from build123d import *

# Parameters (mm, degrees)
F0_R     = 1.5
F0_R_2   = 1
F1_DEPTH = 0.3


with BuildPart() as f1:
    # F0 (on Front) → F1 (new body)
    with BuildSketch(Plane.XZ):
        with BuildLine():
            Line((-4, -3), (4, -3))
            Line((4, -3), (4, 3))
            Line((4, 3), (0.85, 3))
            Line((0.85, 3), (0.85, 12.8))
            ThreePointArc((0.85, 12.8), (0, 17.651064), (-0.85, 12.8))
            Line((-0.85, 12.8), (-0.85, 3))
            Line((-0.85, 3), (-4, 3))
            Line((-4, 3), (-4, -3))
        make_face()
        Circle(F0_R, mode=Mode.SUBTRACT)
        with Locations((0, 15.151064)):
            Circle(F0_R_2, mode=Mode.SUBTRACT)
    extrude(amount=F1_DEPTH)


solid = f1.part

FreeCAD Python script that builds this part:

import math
import FreeCAD as App
import Part
import Sketcher
from FreeCAD import Vector

doc = App.newDocument("Part")
params = doc.addObject("Spreadsheet::Sheet", "Params")
for row, (alias, value) in enumerate([
    ("sketch1_diameter", "3 mm"),
    ("sketch1_diameter2", "2 mm"),
    ("sketch1_radius", "2.5 mm"),
    ("sketch1_width", "8 mm"),
    ("sketch1_height", "6 mm"),
    ("pad1_length", "0.3 mm"),
], start=1):
    params.set(f"A{row}", alias)
    params.set(f"B{row}", "=" + value)
    params.setAlias(f"B{row}", alias)

body = doc.addObject("PartDesign::Body", "Body")

# Sketch on XZ plane
sketch1 = doc.addObject("Sketcher::SketchObject", "Sketch")
body.addObject(sketch1)
sketch1.AttachmentSupport = (doc.XZ_Plane, [""])
sketch1.MapMode = "FlatFace"
sketch1.addGeometry(Part.LineSegment(Vector(-4, -3, 0), Vector(4, -3, 0)), False)
sketch1.addGeometry(Part.LineSegment(Vector(4, -3, 0), Vector(4, 3, 0)), False)
sketch1.addGeometry(Part.LineSegment(Vector(4, 3, 0), Vector(0.85, 3, 0)), False)
sketch1.addGeometry(Part.LineSegment(Vector(0.85, 3, 0), Vector(0.85, 12.8, 0)), False)
sketch1.addGeometry(Part.ArcOfCircle(Part.Circle(Vector(0, 15.151064, 0), Vector(0, 0, 1), 2.5), math.radians(-70.123128), math.radians(250.123128)), False)
sketch1.addGeometry(Part.LineSegment(Vector(-0.85, 12.8, 0), Vector(-0.85, 3, 0)), False)
sketch1.addGeometry(Part.LineSegment(Vector(-0.85, 3, 0), Vector(-4, 3, 0)), False)
sketch1.addGeometry(Part.LineSegment(Vector(-4, 3, 0), Vector(-4, -3, 0)), False)
sketch1.addGeometry(Part.Circle(Vector(0, 0, 0), Vector(0, 0, 1), 1.5), False)
sketch1.addGeometry(Part.Circle(Vector(0, 15.151064, 0), Vector(0, 0, 1), 1), False)
sketch1.addConstraint(Sketcher.Constraint("Coincident", 0, 2, 1, 1))
sketch1.addConstraint(Sketcher.Constraint("Coincident", 1, 2, 2, 1))
sketch1.addConstraint(Sketcher.Constraint("Coincident", 2, 2, 3, 1))
sketch1.addConstraint(Sketcher.Constraint("Coincident", 3, 2, 4, 1))
sketch1.addConstraint(Sketcher.Constraint("Coincident", 4, 2, 5, 1))
sketch1.addConstraint(Sketcher.Constraint("Coincident", 5, 2, 6, 1))
sketch1.addConstraint(Sketcher.Constraint("Coincident", 6, 2, 7, 1))
sketch1.addConstraint(Sketcher.Constraint("Coincident", 7, 2, 0, 1))
sketch1.addConstraint(Sketcher.Constraint("Horizontal", 0))
sketch1.addConstraint(Sketcher.Constraint("Vertical", 1))
sketch1.addConstraint(Sketcher.Constraint("Horizontal", 2))
sketch1.addConstraint(Sketcher.Constraint("Vertical", 3))
sketch1.addConstraint(Sketcher.Constraint("Vertical", 5))
sketch1.addConstraint(Sketcher.Constraint("Horizontal", 6))
sketch1.addConstraint(Sketcher.Constraint("Vertical", 7))
sketch1.addConstraint(Sketcher.Constraint("Coincident", 8, 3, -1, 1))
sketch1.addConstraint(Sketcher.Constraint("Coincident", 9, 3, 4, 3))
sketch1.addConstraint(Sketcher.Constraint("Symmetric", 0, 2, 6, 2, -1, 1))
sketch1.addConstraint(Sketcher.Constraint("Symmetric", 3, 2, 4, 2, -2))
sketch1.addConstraint(Sketcher.Constraint("Horizontal", 2, 2, 5, 2))
sketch1.addConstraint(Sketcher.Constraint("Diameter", 8, 3.0))
sketch1.addConstraint(Sketcher.Constraint("Diameter", 9, 2.0))
sketch1.addConstraint(Sketcher.Constraint("Radius", 4, 2.5))
sketch1.addConstraint(Sketcher.Constraint("DistanceX", 0, 1, 0, 2, 8.0))
sketch1.addConstraint(Sketcher.Constraint("DistanceY", 1, 1, 1, 2, 6.0))
sketch1.addConstraint(Sketcher.Constraint("DistanceY", 3, 1, 3, 2, 9.8))
sketch1.addConstraint(Sketcher.Constraint("DistanceX", 2, 2, 2, 1, 3.15))
sketch1.setExpression("Constraints[20]", "Params.sketch1_diameter")
sketch1.setExpression("Constraints[21]", "Params.sketch1_diameter2")
sketch1.setExpression("Constraints[22]", "Params.sketch1_radius")
sketch1.setExpression("Constraints[23]", "Params.sketch1_width")
sketch1.setExpression("Constraints[24]", "Params.sketch1_height")
pad1 = doc.addObject("PartDesign::Pad", "Pad")
body.addObject(pad1)
pad1.Profile = sketch1
pad1.setExpression("Length", "Params.pad1_length")

doc.recompute()
